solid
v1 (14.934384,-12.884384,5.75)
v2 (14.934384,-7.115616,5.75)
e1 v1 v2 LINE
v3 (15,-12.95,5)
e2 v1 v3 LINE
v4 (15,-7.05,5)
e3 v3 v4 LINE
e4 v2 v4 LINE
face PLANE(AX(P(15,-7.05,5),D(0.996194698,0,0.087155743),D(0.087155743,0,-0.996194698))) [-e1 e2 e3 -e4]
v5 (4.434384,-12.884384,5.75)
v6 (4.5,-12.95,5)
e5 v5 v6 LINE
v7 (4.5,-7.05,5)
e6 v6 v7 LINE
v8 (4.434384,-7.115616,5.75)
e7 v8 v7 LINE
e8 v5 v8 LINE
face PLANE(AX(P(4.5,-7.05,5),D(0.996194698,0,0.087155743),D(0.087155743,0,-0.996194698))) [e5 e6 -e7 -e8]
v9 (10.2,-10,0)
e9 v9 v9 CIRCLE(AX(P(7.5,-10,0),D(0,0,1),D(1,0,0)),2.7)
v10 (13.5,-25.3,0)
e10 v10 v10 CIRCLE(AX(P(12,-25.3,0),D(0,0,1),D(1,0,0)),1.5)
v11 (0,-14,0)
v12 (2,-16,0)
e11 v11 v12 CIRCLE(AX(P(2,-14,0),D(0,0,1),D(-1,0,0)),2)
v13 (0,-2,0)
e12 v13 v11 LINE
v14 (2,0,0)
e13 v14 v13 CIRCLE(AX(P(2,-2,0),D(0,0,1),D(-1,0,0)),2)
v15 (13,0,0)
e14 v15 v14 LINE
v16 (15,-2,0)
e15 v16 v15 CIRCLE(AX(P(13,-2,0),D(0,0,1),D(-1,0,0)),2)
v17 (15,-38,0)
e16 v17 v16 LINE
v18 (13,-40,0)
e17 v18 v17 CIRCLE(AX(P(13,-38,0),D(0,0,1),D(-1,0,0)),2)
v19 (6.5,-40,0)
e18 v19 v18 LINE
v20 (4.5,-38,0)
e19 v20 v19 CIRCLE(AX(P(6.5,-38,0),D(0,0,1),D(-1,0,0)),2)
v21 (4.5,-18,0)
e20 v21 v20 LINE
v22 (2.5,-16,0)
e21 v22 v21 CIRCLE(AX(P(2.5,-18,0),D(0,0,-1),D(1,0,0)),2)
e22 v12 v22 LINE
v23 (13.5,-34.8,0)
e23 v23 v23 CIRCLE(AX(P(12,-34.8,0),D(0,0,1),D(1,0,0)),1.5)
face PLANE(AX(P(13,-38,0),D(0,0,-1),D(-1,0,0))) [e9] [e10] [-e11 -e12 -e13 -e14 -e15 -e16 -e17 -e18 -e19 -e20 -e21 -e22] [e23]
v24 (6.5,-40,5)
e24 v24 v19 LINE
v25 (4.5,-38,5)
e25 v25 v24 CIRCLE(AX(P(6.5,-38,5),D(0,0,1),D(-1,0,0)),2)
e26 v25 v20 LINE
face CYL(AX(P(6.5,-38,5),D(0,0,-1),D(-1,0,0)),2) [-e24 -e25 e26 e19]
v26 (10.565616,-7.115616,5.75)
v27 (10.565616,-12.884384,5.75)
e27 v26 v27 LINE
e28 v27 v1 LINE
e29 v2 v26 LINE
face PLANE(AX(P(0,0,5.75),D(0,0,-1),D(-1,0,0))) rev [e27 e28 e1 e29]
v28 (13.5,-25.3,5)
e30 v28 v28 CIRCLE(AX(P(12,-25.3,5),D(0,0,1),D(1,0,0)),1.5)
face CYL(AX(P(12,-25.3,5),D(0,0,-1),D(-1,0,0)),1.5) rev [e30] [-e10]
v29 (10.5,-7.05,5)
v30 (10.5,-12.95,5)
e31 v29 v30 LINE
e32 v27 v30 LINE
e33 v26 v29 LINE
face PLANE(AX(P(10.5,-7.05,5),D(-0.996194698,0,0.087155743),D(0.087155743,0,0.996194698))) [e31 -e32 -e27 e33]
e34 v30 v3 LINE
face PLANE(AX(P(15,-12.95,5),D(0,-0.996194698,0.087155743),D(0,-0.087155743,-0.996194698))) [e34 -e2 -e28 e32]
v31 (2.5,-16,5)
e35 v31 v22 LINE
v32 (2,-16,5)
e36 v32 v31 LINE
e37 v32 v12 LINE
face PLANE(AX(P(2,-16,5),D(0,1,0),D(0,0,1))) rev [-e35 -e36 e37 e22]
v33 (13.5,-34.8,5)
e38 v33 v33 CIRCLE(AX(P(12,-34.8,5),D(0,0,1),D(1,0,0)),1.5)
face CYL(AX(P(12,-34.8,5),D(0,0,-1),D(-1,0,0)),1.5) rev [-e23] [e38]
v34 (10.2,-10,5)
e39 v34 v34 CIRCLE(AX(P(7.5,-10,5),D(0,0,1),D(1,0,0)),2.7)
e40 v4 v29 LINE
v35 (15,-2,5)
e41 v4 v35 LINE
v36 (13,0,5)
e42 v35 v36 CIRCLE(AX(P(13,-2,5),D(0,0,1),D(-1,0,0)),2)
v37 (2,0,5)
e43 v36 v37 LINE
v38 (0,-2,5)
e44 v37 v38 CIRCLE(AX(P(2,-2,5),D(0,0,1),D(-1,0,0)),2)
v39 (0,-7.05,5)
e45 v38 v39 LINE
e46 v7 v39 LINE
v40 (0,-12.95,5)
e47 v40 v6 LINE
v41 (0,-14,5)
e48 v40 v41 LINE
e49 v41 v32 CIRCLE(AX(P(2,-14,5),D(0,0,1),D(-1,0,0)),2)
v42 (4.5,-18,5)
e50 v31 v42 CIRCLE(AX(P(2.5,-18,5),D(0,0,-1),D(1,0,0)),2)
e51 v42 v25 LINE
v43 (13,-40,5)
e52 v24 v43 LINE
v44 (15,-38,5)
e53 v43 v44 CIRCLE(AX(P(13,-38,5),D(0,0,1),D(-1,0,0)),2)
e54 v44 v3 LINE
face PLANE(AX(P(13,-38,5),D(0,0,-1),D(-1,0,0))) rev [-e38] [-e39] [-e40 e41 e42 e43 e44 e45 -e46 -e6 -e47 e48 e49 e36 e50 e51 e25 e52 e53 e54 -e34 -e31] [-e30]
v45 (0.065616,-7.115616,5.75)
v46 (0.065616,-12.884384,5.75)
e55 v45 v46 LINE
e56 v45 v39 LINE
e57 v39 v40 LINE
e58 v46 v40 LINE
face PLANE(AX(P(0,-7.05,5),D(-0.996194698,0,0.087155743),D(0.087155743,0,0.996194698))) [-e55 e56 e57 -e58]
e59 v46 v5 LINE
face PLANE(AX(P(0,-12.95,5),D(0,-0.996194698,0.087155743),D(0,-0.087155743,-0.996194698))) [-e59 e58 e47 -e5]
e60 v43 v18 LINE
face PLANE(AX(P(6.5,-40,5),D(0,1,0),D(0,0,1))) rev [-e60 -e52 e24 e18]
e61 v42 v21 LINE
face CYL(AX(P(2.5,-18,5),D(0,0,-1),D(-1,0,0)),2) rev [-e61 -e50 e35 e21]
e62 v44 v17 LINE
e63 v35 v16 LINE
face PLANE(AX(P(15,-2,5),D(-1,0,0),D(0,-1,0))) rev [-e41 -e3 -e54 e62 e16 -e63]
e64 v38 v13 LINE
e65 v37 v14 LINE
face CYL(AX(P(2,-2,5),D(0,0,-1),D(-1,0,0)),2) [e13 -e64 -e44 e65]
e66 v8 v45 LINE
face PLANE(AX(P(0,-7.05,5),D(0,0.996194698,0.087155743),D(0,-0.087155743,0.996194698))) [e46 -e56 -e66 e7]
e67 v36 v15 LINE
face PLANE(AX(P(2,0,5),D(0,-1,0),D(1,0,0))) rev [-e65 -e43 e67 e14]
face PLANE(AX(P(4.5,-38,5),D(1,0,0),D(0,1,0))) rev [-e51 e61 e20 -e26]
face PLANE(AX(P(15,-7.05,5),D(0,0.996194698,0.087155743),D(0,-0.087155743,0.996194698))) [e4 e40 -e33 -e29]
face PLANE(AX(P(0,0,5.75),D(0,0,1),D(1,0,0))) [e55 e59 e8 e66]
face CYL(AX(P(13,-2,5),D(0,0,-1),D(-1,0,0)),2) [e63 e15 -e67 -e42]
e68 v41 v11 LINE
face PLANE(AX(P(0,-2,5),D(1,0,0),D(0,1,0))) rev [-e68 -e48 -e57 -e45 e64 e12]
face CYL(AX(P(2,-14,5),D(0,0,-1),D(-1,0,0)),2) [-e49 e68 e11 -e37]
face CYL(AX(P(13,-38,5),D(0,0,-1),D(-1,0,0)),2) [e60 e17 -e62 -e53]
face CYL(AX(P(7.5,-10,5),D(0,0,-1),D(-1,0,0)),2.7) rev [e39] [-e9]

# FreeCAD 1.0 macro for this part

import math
import FreeCAD as App
import Part
import Sketcher


def add_polygon(sketch, points):
    """Adds a closed chain of lines whose ends are joined by coincident constraints."""
    first, n = sketch.GeometryCount, len(points)
    for a, b in zip(points, points[1:] + points[:1]):
        sketch.addGeometry(Part.LineSegment(App.Vector(*a, 0), App.Vector(*b, 0)), False)
    for i in range(n):
        sketch.addConstraint(Sketcher.Constraint("Coincident", first + i, 2, first + (i + 1) % n, 1))

doc = App.newDocument("Part")
body = doc.addObject("PartDesign::Body", "Body")

# Sketch on XY plane
sketch1 = body.newObject("Sketcher::SketchObject", "Sketch")
sketch1.AttachmentSupport = (doc.getObject("XY_Plane"), [""])
sketch1.MapMode = "FlatFace"
sketch1.addGeometry(Part.LineSegment(App.Vector(0, -2, 0), App.Vector(0, -14, 0)), False)
sketch1.addGeometry(Part.ArcOfCircle(Part.Circle(App.Vector(2, -14, 0), App.Vector(0, 0, 1), 2), math.radians(-180), math.radians(-90)), False)
sketch1.addGeometry(Part.LineSegment(App.Vector(2, -16, 0), App.Vector(2.5, -16, 0)), False)
sketch1.addGeometry(Part.ArcOfCircle(Part.Circle(App.Vector(2.5, -18, 0), App.Vector(0, 0, 1), 2), math.radians(0), math.radians(90)), False)
sketch1.addGeometry(Part.LineSegment(App.Vector(4.5, -18, 0), App.Vector(4.5, -38, 0)), False)
sketch1.addGeometry(Part.ArcOfCircle(Part.Circle(App.Vector(6.5, -38, 0), App.Vector(0, 0, 1), 2), math.radians(-180), math.radians(-90)), False)
sketch1.addGeometry(Part.LineSegment(App.Vector(6.5, -40, 0), App.Vector(13, -40, 0)), False)
sketch1.addGeometry(Part.ArcOfCircle(Part.Circle(App.Vector(13, -38, 0), App.Vector(0, 0, 1), 2), math.radians(-90), math.radians(0)), False)
sketch1.addGeometry(Part.LineSegment(App.Vector(15, -38, 0), App.Vector(15, -2, 0)), False)
sketch1.addGeometry(Part.ArcOfCircle(Part.Circle(App.Vector(13, -2, 0), App.Vector(0, 0, 1), 2), math.radians(0), math.radians(90)), False)
sketch1.addGeometry(Part.LineSegment(App.Vector(13, 0, 0), App.Vector(2, 0, 0)), False)
sketch1.addGeometry(Part.ArcOfCircle(Part.Circle(App.Vector(2, -2, 0), App.Vector(0, 0, 1), 2), math.radians(90), math.radians(180)), False)
sketch1.addGeometry(Part.Circle(App.Vector(12, -34.8, 0), App.Vector(0, 0, 1), 1.5), False)
sketch1.addGeometry(Part.Circle(App.Vector(12, -25.3, 0), App.Vector(0, 0, 1), 1.5), False)
sketch1.addGeometry(Part.Circle(App.Vector(7.5, -10, 0), App.Vector(0, 0, 1), 2.7), False)
sketch1.addConstraint(Sketcher.Constraint("Tangent", 0, 2, 1, 1))
sketch1.addConstraint(Sketcher.Constraint("Tangent", 1, 2, 2, 1))
sketch1.addConstraint(Sketcher.Constraint("Tangent", 2, 2, 3, 2))
sketch1.addConstraint(Sketcher.Constraint("Tangent", 3, 1, 4, 1))
sketch1.addConstraint(Sketcher.Constraint("Tangent", 4, 2, 5, 1))
sketch1.addConstraint(Sketcher.Constraint("Tangent", 5, 2, 6, 1))
sketch1.addConstraint(Sketcher.Constraint("Tangent", 6, 2, 7, 1))
sketch1.addConstraint(Sketcher.Constraint("Tangent", 7, 2, 8, 1))
sketch1.addConstraint(Sketcher.Constraint("Tangent", 8, 2, 9, 1))
sketch1.addConstraint(Sketcher.Constraint("Tangent", 9, 2, 10, 1))
sketch1.addConstraint(Sketcher.Constraint("Tangent", 10, 2, 11, 1))
sketch1.addConstraint(Sketcher.Constraint("Tangent", 11, 2, 0, 1))
sketch1.addConstraint(Sketcher.Constraint("Vertical", 0))
sketch1.addConstraint(Sketcher.Constraint("Horizontal", 2))
sketch1.addConstraint(Sketcher.Constraint("Vertical", 4))
sketch1.addConstraint(Sketcher.Constraint("Horizontal", 6))
sketch1.addConstraint(Sketcher.Constraint("Vertical", 8))
sketch1.addConstraint(Sketcher.Constraint("Horizontal", 10))
sketch1.addConstraint(Sketcher.Constraint("Equal", 1, 3))
sketch1.addConstraint(Sketcher.Constraint("Equal", 3, 5))
sketch1.addConstraint(Sketcher.Constraint("Equal", 5, 7))
sketch1.addConstraint(Sketcher.Constraint("Equal", 7, 9))
sketch1.addConstraint(Sketcher.Constraint("Equal", 9, 11))
sketch1.addConstraint(Sketcher.Constraint("Equal", 12, 13))
sketch1.addConstraint(Sketcher.Constraint("PointOnObject", 0, 2, -2))
sketch1.addConstraint(Sketcher.Constraint("PointOnObject", 9, 2, -1))
sketch1.addConstraint(Sketcher.Constraint("Vertical", 12, 3, 13, 3))
sketch1.addConstraint(Sketcher.Constraint("Diameter", 12, 3.0))
sketch1.addConstraint(Sketcher.Constraint("Radius", 1, 2.0))
sketch1.addConstraint(Sketcher.Constraint("Diameter", 14, 5.4))
sketch1.addConstraint(Sketcher.Constraint("DistanceX", 10, 2, 10, 1, 11.0))
sketch1.addConstraint(Sketcher.Constraint("DistanceY", 0, 2, 0, 1, 12.0))
sketch1.addConstraint(Sketcher.Constraint("DistanceY", 4, 2, 4, 1, 20.0))
sketch1.addConstraint(Sketcher.Constraint("DistanceX", 2, 1, 2, 2, 0.5))
sketch1.addConstraint(Sketcher.Constraint("DistanceX", -1, 1, 12, 3, 12.0))
sketch1.addConstraint(Sketcher.Constraint("DistanceY", 14, 3, -1, 1, 10.0))
sketch1.addConstraint(Sketcher.Constraint("DistanceX", 3, 3, 14, 3, 5.0))
sketch1.addConstraint(Sketcher.Constraint("DistanceY", 12, 3, -1, 1, 34.8))
sketch1.addConstraint(Sketcher.Constraint("DistanceY", 13, 3, -1, 1, 25.3))
pad1 = body.newObject("PartDesign::Pad", "Pad")
pad1.Profile = sketch1
pad1.Length = 5

# Sketch on XY plane
sketch2 = body.newObject("Sketcher::SketchObject", "Sketch001")
sketch2.AttachmentSupport = (doc.getObject("XY_Plane"), [""])
sketch2.MapMode = "FlatFace"
sketch2.AttachmentOffset = App.Placement(App.Vector(0, 0, 5), App.Rotation())
add_polygon(sketch2, [(0, -7), (0, -12.9), (4.5, -12.9), (4.5, -7)])  # lines 0-3
add_polygon(sketch2, [(10.5, -7), (10.5, -12.9), (15, -12.9), (15, -7)])  # lines 4-7
sketch2.addConstraint(Sketcher.Constraint("Vertical", 0))
sketch2.addConstraint(Sketcher.Constraint("Horizontal", 1))
sketch2.addConstraint(Sketcher.Constraint("Vertical", 2))
sketch2.addConstraint(Sketcher.Constraint("Horizontal", 3))
sketch2.addConstraint(Sketcher.Constraint("Vertical", 4))
sketch2.addConstraint(Sketcher.Constraint("Horizontal", 5))
sketch2.addConstraint(Sketcher.Constraint("Vertical", 6))
sketch2.addConstraint(Sketcher.Constraint("Horizontal", 7))
sketch2.addConstraint(Sketcher.Constraint("PointOnObject", 0, 2, -2))
sketch2.addConstraint(Sketcher.Constraint("Horizontal", 1, 2, 4, 2))
sketch2.addConstraint(Sketcher.Constraint("Horizontal", 3, 2, 6, 2))
sketch2.addConstraint(Sketcher.Constraint("Equal", 3, 5))
sketch2.addConstraint(Sketcher.Constraint("DistanceX", 1, 1, 1, 2, 4.5))
sketch2.addConstraint(Sketcher.Constraint("DistanceY", 0, 2, 0, 1, 5.9))
sketch2.addConstraint(Sketcher.Constraint("DistanceX", -1, 1, 5, 2, 15.0))
sketch2.addConstraint(Sketcher.Constraint("DistanceY", 0, 2, -1, 1, 12.95))
pad2 = body.newObject("PartDesign::Pad", "Pad001")
pad2.Profile = sketch2
pad2.Length = 0.75
pad2.TaperAngle = -5

doc.recompute()
